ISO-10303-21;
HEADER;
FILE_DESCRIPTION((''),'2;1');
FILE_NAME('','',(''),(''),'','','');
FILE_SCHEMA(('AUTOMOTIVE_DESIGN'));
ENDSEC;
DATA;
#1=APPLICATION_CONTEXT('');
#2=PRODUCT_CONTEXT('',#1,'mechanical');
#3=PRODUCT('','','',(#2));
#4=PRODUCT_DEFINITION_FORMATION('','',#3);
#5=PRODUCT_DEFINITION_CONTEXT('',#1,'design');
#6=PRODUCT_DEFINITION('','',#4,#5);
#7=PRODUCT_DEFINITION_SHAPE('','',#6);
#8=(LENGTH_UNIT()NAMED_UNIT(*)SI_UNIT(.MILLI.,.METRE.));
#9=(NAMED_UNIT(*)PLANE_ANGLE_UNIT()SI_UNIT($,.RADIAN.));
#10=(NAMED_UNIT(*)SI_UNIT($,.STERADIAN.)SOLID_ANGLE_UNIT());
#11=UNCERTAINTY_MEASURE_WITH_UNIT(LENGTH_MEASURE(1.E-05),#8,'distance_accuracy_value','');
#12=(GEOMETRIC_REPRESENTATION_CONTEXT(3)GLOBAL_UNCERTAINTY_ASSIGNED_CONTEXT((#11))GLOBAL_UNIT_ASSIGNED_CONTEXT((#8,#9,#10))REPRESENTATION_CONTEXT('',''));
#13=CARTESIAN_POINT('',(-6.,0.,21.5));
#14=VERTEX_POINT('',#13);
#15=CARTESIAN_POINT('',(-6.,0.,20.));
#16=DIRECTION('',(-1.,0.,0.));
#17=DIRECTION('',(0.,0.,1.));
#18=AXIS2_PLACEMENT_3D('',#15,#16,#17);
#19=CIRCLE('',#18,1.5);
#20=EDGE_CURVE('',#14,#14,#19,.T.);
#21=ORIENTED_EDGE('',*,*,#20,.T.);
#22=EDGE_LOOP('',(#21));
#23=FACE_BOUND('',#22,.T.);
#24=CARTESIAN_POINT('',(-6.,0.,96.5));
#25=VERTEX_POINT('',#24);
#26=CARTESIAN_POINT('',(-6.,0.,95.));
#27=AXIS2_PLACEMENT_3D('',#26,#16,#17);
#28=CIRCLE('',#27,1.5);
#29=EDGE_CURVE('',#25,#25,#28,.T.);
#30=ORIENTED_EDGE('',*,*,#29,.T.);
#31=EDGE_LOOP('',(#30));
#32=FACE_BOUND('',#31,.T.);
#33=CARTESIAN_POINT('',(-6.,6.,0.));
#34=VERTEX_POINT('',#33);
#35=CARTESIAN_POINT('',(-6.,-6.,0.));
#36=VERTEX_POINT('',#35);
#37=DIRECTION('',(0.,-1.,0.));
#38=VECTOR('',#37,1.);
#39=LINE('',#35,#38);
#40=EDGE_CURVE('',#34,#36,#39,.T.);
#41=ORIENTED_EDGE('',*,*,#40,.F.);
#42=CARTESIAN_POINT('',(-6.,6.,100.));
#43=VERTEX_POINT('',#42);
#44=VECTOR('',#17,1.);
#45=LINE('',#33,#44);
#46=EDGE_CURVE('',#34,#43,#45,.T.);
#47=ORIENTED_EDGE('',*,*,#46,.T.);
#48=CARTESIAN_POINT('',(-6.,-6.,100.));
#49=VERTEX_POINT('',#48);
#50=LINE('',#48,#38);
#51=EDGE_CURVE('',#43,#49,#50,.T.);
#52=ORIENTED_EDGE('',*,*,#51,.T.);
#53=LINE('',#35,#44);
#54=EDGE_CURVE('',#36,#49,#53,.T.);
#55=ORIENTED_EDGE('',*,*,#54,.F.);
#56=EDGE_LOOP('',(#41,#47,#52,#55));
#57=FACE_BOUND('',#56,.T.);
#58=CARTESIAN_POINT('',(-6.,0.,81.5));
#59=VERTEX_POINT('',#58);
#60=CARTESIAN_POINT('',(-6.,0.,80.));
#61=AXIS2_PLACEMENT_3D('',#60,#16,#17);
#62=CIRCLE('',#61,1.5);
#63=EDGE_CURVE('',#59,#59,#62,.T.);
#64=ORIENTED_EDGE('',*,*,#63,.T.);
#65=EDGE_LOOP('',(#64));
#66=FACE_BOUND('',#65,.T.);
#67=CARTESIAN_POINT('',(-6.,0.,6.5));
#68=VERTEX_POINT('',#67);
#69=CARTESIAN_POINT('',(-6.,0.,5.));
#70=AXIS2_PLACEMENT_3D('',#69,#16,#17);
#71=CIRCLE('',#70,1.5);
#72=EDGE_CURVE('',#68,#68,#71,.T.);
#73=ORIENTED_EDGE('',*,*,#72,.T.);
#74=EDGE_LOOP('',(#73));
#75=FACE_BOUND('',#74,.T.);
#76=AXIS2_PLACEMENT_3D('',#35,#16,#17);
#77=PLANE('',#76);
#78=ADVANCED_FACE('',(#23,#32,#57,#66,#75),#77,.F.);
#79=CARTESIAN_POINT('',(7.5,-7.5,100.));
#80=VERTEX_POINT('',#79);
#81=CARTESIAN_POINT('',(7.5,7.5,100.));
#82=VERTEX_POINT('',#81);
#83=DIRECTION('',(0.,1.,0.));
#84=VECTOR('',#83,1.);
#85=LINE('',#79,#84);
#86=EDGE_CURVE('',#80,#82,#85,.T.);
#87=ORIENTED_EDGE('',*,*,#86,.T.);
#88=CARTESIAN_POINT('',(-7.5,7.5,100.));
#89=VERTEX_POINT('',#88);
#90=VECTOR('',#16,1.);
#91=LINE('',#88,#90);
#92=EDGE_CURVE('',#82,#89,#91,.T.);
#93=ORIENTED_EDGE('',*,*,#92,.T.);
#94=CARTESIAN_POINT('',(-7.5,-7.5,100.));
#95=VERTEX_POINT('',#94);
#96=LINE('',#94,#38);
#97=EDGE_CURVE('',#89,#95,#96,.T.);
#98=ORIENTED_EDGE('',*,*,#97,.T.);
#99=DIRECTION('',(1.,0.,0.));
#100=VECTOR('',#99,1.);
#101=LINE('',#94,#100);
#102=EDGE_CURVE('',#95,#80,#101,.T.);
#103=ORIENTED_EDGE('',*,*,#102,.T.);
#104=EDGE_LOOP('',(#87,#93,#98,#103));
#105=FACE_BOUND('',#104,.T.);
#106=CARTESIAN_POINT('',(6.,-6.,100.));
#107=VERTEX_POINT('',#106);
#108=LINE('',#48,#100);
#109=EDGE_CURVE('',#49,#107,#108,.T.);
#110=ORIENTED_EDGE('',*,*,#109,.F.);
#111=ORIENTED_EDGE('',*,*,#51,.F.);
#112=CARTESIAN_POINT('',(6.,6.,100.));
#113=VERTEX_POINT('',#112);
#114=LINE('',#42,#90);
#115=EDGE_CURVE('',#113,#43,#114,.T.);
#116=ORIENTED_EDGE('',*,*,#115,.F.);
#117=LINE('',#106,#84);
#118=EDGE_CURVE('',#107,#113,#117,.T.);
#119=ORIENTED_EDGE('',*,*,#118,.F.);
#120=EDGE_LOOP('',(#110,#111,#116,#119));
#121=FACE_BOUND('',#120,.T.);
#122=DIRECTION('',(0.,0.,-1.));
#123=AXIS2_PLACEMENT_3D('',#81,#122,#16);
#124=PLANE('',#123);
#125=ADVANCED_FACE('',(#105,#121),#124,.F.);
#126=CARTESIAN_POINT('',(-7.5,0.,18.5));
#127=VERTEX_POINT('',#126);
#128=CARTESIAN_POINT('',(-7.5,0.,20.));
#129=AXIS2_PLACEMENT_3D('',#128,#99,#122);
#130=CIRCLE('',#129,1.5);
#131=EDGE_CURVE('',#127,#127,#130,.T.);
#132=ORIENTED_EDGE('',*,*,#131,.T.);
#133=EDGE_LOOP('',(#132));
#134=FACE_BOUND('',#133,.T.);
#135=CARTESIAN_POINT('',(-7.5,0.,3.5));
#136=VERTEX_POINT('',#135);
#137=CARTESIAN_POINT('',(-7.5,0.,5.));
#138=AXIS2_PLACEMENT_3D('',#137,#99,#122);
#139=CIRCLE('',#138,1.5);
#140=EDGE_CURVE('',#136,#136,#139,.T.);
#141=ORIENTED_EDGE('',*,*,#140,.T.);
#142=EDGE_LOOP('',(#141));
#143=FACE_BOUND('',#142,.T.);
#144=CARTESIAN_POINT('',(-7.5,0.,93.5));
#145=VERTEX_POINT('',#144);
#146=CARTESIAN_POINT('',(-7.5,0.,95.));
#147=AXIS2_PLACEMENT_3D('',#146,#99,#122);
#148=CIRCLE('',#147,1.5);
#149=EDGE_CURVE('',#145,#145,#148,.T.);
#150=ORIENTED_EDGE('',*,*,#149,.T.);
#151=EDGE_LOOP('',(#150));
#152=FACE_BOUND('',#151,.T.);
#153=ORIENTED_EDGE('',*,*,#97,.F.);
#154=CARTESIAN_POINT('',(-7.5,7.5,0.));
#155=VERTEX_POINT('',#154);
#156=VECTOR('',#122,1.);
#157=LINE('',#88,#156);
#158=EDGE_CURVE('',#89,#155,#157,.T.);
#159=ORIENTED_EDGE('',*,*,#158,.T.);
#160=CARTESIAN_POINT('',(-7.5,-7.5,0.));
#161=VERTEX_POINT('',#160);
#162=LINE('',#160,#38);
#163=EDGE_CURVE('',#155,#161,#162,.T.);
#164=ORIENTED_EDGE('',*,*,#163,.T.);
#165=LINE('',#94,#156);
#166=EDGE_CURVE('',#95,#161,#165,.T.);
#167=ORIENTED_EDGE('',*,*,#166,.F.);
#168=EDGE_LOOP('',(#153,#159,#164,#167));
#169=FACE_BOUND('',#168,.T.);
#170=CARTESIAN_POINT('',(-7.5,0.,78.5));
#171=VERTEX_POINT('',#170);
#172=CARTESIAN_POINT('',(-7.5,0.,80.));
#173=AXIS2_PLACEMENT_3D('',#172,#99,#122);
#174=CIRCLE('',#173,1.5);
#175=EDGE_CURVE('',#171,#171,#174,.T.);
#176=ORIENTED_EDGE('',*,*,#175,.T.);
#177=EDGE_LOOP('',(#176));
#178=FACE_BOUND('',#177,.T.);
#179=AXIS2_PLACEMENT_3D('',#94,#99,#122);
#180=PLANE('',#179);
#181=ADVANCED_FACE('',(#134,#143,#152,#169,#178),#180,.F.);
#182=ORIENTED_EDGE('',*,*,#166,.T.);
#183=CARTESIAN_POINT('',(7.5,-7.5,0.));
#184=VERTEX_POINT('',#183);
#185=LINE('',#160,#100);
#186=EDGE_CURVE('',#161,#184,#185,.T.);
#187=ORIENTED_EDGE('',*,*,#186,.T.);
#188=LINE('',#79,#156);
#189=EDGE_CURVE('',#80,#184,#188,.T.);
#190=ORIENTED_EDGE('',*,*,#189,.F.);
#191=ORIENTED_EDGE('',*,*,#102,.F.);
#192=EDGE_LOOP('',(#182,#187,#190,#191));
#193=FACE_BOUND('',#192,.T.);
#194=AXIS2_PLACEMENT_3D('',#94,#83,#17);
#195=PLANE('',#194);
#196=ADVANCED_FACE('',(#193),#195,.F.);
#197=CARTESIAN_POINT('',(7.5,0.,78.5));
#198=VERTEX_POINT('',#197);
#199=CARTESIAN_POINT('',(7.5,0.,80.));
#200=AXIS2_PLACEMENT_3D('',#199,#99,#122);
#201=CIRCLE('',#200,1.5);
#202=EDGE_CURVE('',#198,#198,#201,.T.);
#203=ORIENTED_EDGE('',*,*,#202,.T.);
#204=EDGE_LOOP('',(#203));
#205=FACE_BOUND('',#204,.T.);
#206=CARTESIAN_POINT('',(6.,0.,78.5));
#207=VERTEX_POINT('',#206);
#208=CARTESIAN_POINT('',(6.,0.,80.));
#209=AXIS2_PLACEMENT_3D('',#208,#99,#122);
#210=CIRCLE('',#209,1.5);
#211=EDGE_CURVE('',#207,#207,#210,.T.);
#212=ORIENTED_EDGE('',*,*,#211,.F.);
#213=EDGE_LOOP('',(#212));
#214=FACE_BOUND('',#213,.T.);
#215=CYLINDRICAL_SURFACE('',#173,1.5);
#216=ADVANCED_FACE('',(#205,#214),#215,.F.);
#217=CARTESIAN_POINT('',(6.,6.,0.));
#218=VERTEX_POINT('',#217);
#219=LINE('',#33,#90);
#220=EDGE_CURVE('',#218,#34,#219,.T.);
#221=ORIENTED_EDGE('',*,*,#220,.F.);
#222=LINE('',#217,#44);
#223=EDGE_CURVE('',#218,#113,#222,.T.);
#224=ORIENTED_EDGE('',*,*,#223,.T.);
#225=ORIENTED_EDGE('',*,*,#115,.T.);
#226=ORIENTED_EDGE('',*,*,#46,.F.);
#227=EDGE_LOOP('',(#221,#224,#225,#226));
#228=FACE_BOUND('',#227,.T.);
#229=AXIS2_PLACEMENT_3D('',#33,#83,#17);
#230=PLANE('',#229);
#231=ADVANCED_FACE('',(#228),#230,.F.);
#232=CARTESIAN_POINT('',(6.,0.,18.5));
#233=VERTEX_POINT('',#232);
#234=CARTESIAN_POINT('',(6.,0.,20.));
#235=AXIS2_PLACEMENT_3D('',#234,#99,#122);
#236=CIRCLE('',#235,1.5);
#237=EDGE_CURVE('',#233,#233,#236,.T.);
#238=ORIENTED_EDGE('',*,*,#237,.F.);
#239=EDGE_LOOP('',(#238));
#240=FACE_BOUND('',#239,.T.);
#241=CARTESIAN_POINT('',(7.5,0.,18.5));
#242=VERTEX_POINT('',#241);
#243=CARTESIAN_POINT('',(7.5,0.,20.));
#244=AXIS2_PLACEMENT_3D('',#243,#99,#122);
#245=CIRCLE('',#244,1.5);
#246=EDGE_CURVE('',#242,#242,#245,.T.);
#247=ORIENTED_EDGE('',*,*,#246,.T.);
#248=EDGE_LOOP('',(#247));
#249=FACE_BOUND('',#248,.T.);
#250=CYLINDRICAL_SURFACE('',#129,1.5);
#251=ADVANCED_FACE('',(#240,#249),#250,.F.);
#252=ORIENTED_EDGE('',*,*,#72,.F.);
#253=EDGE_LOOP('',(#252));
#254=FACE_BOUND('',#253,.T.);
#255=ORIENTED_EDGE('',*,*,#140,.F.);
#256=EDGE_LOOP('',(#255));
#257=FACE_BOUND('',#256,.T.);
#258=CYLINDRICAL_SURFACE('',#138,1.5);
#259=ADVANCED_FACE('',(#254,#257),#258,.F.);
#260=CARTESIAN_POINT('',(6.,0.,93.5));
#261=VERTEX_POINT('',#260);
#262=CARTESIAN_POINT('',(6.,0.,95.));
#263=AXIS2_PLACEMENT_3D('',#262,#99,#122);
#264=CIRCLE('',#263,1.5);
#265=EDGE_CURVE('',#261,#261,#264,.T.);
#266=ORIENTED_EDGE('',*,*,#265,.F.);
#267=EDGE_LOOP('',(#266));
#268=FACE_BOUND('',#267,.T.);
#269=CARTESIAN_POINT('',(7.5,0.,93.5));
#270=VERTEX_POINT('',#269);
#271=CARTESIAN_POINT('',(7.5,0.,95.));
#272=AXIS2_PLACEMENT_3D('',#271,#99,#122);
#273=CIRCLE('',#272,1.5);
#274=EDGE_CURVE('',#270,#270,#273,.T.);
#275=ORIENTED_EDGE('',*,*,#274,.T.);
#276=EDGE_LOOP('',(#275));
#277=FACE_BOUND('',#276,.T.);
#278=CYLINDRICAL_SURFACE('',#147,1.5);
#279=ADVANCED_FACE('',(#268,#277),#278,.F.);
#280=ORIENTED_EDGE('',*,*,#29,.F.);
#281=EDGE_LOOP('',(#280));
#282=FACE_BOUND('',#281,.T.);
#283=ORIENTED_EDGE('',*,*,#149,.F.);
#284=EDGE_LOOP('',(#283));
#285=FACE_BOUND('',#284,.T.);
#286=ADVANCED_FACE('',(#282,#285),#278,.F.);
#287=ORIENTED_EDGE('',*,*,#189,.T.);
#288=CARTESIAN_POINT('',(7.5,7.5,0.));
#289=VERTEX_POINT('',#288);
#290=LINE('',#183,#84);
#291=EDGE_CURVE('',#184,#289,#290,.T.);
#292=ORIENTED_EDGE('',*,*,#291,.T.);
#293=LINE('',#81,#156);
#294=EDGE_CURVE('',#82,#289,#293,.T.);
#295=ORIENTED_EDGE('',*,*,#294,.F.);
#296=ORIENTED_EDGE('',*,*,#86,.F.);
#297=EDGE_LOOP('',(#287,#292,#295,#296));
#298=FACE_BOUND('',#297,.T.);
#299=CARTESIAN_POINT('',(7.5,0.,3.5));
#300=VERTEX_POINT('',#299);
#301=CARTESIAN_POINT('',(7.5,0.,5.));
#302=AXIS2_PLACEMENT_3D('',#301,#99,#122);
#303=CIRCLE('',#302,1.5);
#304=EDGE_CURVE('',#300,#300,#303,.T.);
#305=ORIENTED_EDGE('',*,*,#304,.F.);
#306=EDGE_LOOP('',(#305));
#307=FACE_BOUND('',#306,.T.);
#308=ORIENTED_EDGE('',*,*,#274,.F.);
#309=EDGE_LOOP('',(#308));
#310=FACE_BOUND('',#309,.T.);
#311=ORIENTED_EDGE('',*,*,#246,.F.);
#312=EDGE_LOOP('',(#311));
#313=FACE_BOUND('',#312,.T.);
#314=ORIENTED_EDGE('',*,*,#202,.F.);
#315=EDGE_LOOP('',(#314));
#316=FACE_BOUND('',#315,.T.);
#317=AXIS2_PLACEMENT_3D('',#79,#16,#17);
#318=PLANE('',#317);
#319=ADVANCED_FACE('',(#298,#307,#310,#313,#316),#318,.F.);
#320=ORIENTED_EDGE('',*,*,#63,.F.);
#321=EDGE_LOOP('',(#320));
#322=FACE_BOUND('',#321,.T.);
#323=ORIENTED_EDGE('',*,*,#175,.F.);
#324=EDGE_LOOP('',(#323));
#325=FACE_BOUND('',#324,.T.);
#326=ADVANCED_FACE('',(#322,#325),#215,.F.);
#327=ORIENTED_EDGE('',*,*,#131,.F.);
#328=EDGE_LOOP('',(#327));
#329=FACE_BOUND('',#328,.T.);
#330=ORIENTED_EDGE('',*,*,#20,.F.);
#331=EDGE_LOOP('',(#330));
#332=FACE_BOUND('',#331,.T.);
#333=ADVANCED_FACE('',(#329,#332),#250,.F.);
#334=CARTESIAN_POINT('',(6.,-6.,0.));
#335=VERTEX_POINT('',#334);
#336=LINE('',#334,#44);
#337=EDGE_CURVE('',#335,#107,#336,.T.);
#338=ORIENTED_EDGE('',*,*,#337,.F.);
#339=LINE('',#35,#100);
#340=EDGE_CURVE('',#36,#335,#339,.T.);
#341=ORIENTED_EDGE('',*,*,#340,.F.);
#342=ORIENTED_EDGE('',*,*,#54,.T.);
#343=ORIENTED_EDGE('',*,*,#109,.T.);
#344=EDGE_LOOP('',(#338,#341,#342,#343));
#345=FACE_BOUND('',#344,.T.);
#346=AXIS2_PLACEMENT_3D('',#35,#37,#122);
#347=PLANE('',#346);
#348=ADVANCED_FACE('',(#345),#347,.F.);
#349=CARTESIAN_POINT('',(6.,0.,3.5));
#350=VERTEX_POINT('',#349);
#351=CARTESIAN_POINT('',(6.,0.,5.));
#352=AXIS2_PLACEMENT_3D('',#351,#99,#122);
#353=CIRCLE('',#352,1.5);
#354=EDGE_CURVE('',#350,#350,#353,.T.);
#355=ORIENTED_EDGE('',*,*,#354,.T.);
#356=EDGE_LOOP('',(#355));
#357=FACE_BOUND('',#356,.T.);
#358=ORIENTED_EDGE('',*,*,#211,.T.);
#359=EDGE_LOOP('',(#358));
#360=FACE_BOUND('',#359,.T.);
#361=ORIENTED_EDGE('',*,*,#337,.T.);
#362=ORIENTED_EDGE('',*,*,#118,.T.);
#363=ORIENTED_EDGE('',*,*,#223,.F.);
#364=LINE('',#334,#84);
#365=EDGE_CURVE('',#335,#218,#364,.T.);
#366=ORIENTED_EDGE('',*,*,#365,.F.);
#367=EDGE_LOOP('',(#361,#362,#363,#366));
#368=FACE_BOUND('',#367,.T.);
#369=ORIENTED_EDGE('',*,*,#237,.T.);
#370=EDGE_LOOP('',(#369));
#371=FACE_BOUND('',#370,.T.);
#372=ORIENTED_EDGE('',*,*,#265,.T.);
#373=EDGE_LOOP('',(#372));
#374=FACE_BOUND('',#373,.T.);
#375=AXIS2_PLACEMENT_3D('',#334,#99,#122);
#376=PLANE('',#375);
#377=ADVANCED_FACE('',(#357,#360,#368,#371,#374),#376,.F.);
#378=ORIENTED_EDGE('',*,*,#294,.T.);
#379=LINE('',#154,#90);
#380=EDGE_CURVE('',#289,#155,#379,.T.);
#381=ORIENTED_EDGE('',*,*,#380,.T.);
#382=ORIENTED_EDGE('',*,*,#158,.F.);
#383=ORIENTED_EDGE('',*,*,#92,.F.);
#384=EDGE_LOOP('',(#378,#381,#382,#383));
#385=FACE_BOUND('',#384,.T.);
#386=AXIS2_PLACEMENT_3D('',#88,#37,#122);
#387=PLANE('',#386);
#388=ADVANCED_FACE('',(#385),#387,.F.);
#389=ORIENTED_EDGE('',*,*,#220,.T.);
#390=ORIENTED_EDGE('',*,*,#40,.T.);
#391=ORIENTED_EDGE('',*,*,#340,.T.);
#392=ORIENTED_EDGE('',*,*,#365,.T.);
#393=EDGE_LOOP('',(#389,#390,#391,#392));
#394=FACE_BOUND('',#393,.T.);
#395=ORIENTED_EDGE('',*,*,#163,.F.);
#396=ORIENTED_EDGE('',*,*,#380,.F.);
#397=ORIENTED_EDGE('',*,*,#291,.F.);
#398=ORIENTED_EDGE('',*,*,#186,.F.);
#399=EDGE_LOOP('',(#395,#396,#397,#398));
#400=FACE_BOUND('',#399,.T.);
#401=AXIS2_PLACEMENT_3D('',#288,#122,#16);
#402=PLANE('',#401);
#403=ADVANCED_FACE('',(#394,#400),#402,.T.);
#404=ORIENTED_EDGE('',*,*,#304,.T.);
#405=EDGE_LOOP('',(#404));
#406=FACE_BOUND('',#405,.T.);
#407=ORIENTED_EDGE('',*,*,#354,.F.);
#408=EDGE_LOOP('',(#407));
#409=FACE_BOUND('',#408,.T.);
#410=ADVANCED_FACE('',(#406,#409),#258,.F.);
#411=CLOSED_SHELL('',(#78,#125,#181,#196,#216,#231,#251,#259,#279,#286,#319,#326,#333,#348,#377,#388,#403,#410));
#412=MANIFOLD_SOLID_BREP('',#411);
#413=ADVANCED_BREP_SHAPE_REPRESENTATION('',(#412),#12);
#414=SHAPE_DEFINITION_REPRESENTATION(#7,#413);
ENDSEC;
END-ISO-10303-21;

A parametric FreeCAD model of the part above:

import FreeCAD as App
import Part
import Sketcher

doc = App.newDocument("Part")
body = doc.addObject("PartDesign::Body", "Body")

# Sketch on XY plane
sketch1 = body.newObject("Sketcher::SketchObject", "Sketch")
sketch1.AttachmentSupport = (doc.getObject("XY_Plane"), [""])
sketch1.MapMode = "FlatFace"
sketch1.addGeometry([
    Part.LineSegment(App.Vector(-7.5, 7.5, 0), App.Vector(-7.5, -7.5, 0)),
    Part.LineSegment(App.Vector(-7.5, -7.5, 0), App.Vector(7.5, -7.5, 0)),
    Part.LineSegment(App.Vector(7.5, -7.5, 0), App.Vector(7.5, 7.5, 0)),
    Part.LineSegment(App.Vector(7.5, 7.5, 0), App.Vector(-7.5, 7.5, 0)),
], False)
sketch1.addConstraint([
    Sketcher.Constraint("Coincident", 0, 2, 1, 1),
    Sketcher.Constraint("Coincident", 1, 2, 2, 1),
    Sketcher.Constraint("Coincident", 2, 2, 3, 1),
    Sketcher.Constraint("Coincident", 3, 2, 0, 1),
    Sketcher.Constraint("Vertical", 0),
    Sketcher.Constraint("Horizontal", 1),
    Sketcher.Constraint("Vertical", 2),
    Sketcher.Constraint("Horizontal", 3),
    Sketcher.Constraint("Symmetric", 0, 2, 2, 2, -1, 1),
    Sketcher.Constraint("Equal", 3, 0),
    Sketcher.Constraint("DistanceX", 1, 1, 1, 2, 15.0),
])
pad1 = body.newObject("PartDesign::Pad", "Pad")
pad1.Profile = sketch1
pad1.Length = 100

# Sketch on XY plane
sketch2 = body.newObject("Sketcher::SketchObject", "Sketch001")
sketch2.AttachmentSupport = (doc.getObject("XY_Plane"), [""])
sketch2.MapMode = "FlatFace"
sketch2.AttachmentOffset = App.Placement(App.Vector(0, 0, 100), App.Rotation())
sketch2.addGeometry([
    Part.LineSegment(App.Vector(-6, 6, 0), App.Vector(-6, -6, 0)),
    Part.LineSegment(App.Vector(-6, -6, 0), App.Vector(6, -6, 0)),
    Part.LineSegment(App.Vector(6, -6, 0), App.Vector(6, 6, 0)),
    Part.LineSegment(App.Vector(6, 6, 0), App.Vector(-6, 6, 0)),
], False)
sketch2.addConstraint([
    Sketcher.Constraint("Coincident", 0, 2, 1, 1),
    Sketcher.Constraint("Coincident", 1, 2, 2, 1),
    Sketcher.Constraint("Coincident", 2, 2, 3, 1),
    Sketcher.Constraint("Coincident", 3, 2, 0, 1),
    Sketcher.Constraint("Vertical", 0),
    Sketcher.Constraint("Horizontal", 1),
    Sketcher.Constraint("Vertical", 2),
    Sketcher.Constraint("Horizontal", 3),
    Sketcher.Constraint("Symmetric", 0, 2, 2, 2, -1, 1),
    Sketcher.Constraint("Equal", 3, 0),
    Sketcher.Constraint("DistanceX", 1, 1, 1, 2, 12.0),
])
pocket1 = body.newObject("PartDesign::Pocket", "Pocket")
pocket1.Profile = sketch2
pocket1.Type = "ThroughAll"

# Sketch on YZ plane
sketch3 = body.newObject("Sketcher::SketchObject", "Sketch002")
sketch3.AttachmentSupport = (doc.getObject("YZ_Plane"), [""])
sketch3.MapMode = "FlatFace"
sketch3.AttachmentOffset = App.Placement(App.Vector(0, 0, 7.5), App.Rotation())
sketch3.addGeometry(Part.Circle(App.Vector(0, 5, 0), App.Vector(0, 0, 1), 1.5), False)
sketch3.addConstraint([
    Sketcher.Constraint("PointOnObject", 0, 3, -2),
    Sketcher.Constraint("Diameter", 0, 3.0),
    Sketcher.Constraint("DistanceY", -1, 1, 0, 3, 5.0),
])
pocket2 = body.newObject("PartDesign::Pocket", "Pocket001")
pocket2.Profile = sketch3
pocket2.Type = "ThroughAll"

# Sketch on YZ plane
sketch4 = body.newObject("Sketcher::SketchObject", "Sketch003")
sketch4.AttachmentSupport = (doc.getObject("YZ_Plane"), [""])
sketch4.MapMode = "FlatFace"
sketch4.AttachmentOffset = App.Placement(App.Vector(0, 0, 7.5), App.Rotation())
sketch4.addGeometry(Part.Circle(App.Vector(0, 20, 0), App.Vector(0, 0, 1), 1.5), False)
sketch4.addConstraint([
    Sketcher.Constraint("PointOnObject", 0, 3, -2),
    Sketcher.Constraint("Diameter", 0, 3.0),
    Sketcher.Constraint("DistanceY", -1, 1, 0, 3, 20.0),
])
pocket3 = body.newObject("PartDesign::Pocket", "Pocket002")
pocket3.Profile = sketch4
pocket3.Type = "ThroughAll"

# Sketch on YZ plane
sketch5 = body.newObject("Sketcher::SketchObject", "Sketch004")
sketch5.AttachmentSupport = (doc.getObject("YZ_Plane"), [""])
sketch5.MapMode = "FlatFace"
sketch5.AttachmentOffset = App.Placement(App.Vector(0, 0, 7.5), App.Rotation())
sketch5.addGeometry([
    Part.Circle(App.Vector(0, 95, 0), App.Vector(0, 0, 1), 1.5),
    Part.Circle(App.Vector(0, 80, 0), App.Vector(0, 0, 1), 1.5),
], False)
sketch5.addConstraint([
    Sketcher.Constraint("Equal", 0, 1),
    Sketcher.Constraint("PointOnObject", 0, 3, -2),
    Sketcher.Constraint("PointOnObject", 1, 3, -2),
    Sketcher.Constraint("Diameter", 0, 3.0),
    Sketcher.Constraint("DistanceY", -1, 1, 0, 3, 95.0),
    Sketcher.Constraint("DistanceY", -1, 1, 1, 3, 80.0),
])
pocket4 = body.newObject("PartDesign::Pocket", "Pocket003")
pocket4.Profile = sketch5
pocket4.Type = "ThroughAll"

doc.recompute()
